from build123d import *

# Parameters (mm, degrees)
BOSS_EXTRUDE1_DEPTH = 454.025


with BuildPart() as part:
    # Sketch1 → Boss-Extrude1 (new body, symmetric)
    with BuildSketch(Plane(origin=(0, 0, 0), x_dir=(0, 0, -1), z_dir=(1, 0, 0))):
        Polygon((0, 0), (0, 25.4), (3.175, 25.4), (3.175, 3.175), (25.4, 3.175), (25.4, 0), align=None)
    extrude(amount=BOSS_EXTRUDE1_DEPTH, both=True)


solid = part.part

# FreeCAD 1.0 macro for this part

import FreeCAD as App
import Part
import Sketcher
from FreeCAD import Vector
Q = App.Units.Quantity

doc = App.newDocument("Part")
body = doc.addObject("PartDesign::Body", "Body")

sketch1 = body.newObject("Sketcher::SketchObject", "Sketch")
sketch1.AttachmentSupport = (doc.getObject("YZ_Plane"), [""])
sketch1.MapMode = "FlatFace"
sketch1.addGeometry(Part.LineSegment(Vector(25.4, 0, 0), Vector(0, 0, 0)), False)
sketch1.addGeometry(Part.LineSegment(Vector(0, 0, 0), Vector(0, -25.4, 0)), False)
sketch1.addGeometry(Part.LineSegment(Vector(0, -25.4, 0), Vector(3.2, -25.4, 0)), False)
sketch1.addGeometry(Part.LineSegment(Vector(3.2, -25.4, 0), Vector(3.2, -3.2, 0)), False)
sketch1.addGeometry(Part.LineSegment(Vector(3.2, -3.2, 0), Vector(25.4, -3.2, 0)), False)
sketch1.addGeometry(Part.LineSegment(Vector(25.4, -3.2, 0), Vector(25.4, 0, 0)), False)
sketch1.addConstraint(Sketcher.Constraint("Coincident", 0, 2, 1, 1))
sketch1.addConstraint(Sketcher.Constraint("Coincident", 1, 2, 2, 1))
sketch1.addConstraint(Sketcher.Constraint("Coincident", 2, 2, 3, 1))
sketch1.addConstraint(Sketcher.Constraint("Coincident", 3, 2, 4, 1))
sketch1.addConstraint(Sketcher.Constraint("Coincident", 4, 2, 5, 1))
sketch1.addConstraint(Sketcher.Constraint("Coincident", 5, 2, 0, 1))
sketch1.addConstraint(Sketcher.Constraint("Horizontal", 0))
sketch1.addConstraint(Sketcher.Constraint("Vertical", 1))
sketch1.addConstraint(Sketcher.Constraint("Horizontal", 2))
sketch1.addConstraint(Sketcher.Constraint("Vertical", 3))
sketch1.addConstraint(Sketcher.Constraint("Horizontal", 4))
sketch1.addConstraint(Sketcher.Constraint("Vertical", 5))
sketch1.addConstraint(Sketcher.Constraint("Coincident", 0, 2, -1, 1))
sketch1.addConstraint(Sketcher.Constraint("Equal", 0, 1))
sketch1.addConstraint(Sketcher.Constraint("Equal", 4, 3))
sketch1.addConstraint(Sketcher.Constraint("DistanceX", 0, 2, 0, 1, Q("1 in")))
sketch1.addConstraint(Sketcher.Constraint("DistanceX", 2, 1, 2, 2, Q("0.125 in")))
pad1 = body.newObject("PartDesign::Pad", "Pad")
pad1.Profile = sketch1
pad1.Length = Q("35.75 in")
pad1.Midplane = True

doc.recompute()
